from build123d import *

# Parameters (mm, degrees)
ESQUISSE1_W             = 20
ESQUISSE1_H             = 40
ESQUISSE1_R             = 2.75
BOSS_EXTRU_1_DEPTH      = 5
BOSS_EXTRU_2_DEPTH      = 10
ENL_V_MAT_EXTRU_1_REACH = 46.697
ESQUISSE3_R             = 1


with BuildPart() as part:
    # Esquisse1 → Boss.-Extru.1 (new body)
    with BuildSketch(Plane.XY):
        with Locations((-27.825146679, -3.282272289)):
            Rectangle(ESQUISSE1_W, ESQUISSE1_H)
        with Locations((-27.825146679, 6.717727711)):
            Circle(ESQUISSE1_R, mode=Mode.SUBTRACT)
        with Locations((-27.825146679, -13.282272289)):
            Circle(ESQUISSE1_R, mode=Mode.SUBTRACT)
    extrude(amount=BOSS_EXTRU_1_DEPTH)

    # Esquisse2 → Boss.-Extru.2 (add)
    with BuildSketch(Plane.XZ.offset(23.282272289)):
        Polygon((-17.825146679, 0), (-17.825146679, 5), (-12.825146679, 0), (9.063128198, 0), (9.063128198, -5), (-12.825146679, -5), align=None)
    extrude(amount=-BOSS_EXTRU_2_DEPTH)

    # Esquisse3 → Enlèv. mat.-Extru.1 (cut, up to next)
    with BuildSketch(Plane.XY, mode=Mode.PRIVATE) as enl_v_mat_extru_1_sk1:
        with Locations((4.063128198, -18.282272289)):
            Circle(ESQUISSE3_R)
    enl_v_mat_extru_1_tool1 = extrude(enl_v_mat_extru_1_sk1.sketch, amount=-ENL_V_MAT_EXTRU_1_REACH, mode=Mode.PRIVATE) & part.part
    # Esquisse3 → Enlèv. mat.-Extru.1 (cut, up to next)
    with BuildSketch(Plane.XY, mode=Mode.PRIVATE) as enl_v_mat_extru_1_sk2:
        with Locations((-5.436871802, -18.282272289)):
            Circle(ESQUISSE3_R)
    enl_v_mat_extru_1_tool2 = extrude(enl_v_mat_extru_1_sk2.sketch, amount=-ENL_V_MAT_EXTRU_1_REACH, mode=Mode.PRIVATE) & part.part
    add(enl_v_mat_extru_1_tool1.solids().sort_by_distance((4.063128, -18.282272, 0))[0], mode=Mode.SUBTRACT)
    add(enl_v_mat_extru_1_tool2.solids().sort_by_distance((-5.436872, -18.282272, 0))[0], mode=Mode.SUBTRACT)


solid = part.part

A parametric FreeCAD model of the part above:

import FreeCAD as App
import Part
import Sketcher

V = App.Vector
Q = App.Units.Quantity

doc = App.newDocument("Part")
body = doc.addObject("PartDesign::Body", "Body")

# Sketch on XY plane
sketch1 = body.newObject("Sketcher::SketchObject", "Sketch")
sketch1.AttachmentSupport = (doc.getObject("XY_Plane"), [""])
sketch1.MapMode = "FlatFace"
sketch1.addGeometry(Part.LineSegment(V(-37.8, 16.7, 0), V(-37.8, -23.3, 0)), False)
sketch1.addGeometry(Part.LineSegment(V(-37.8, -23.3, 0), V(-17.8, -23.3, 0)), False)
sketch1.addGeometry(Part.LineSegment(V(-17.8, -23.3, 0), V(-17.8, 16.7, 0)), False)
sketch1.addGeometry(Part.LineSegment(V(-17.8, 16.7, 0), V(-37.8, 16.7, 0)), False)
sketch1.addGeometry(Part.Circle(V(-27.8, -13.3, 0), V(0, 0, 1), 2.8), False)
sketch1.addGeometry(Part.Circle(V(-27.8, 6.7, 0), V(0, 0, 1), 2.8), False)
sketch1.addConstraint(Sketcher.Constraint("Coincident", 0, 2, 1, 1))
sketch1.addConstraint(Sketcher.Constraint("Coincident", 1, 2, 2, 1))
sketch1.addConstraint(Sketcher.Constraint("Coincident", 2, 2, 3, 1))
sketch1.addConstraint(Sketcher.Constraint("Coincident", 3, 2, 0, 1))
sketch1.addConstraint(Sketcher.Constraint("Vertical", 0))
sketch1.addConstraint(Sketcher.Constraint("Horizontal", 1))
sketch1.addConstraint(Sketcher.Constraint("Vertical", 2))
sketch1.addConstraint(Sketcher.Constraint("Horizontal", 3))
sketch1.addConstraint(Sketcher.Constraint("Equal", 4, 5))
sketch1.addConstraint(Sketcher.Constraint("Vertical", 4, 3, 5, 3))
sketch1.addConstraint(Sketcher.Constraint("Diameter", 4, 5.5))
sketch1.addConstraint(Sketcher.Constraint("DistanceX", 1, 1, 1, 2, 20.0))
sketch1.addConstraint(Sketcher.Constraint("DistanceY", 0, 2, 0, 1, 40.0))
sketch1.addConstraint(Sketcher.Constraint("DistanceY", 4, 3, 5, 3, 20.0))
sketch1.addConstraint(Sketcher.Constraint("DistanceX", 0, 2, 4, 3, 10.0))
sketch1.addConstraint(Sketcher.Constraint("DistanceY", 0, 2, 4, 3, 10.0))
sketch1.addConstraint(Sketcher.Constraint("DistanceX", 4, 3, -1, 1, 27.825147))
sketch1.addConstraint(Sketcher.Constraint("DistanceY", 4, 3, -1, 1, 13.282272))
pad1 = body.newObject("PartDesign::Pad", "Pad")
pad1.Profile = sketch1
pad1.Length = 5

# Sketch on XZ plane
sketch2 = body.newObject("Sketcher::SketchObject", "Sketch001")
sketch2.AttachmentSupport = (doc.getObject("XZ_Plane"), [""])
sketch2.MapMode = "FlatFace"
sketch2.AttachmentOffset = App.Placement(V(0, 0, 23.282272), App.Rotation())
sketch2.addGeometry(Part.LineSegment(V(-18, 5, 0), V(-18, 0, 0)), False)
sketch2.addGeometry(Part.LineSegment(V(-18, 0, 0), V(-13, -5, 0)), False)
sketch2.addGeometry(Part.LineSegment(V(-13, -5, 0), V(9, -5, 0)), False)
sketch2.addGeometry(Part.LineSegment(V(9, -5, 0), V(9, 0, 0)), False)
sketch2.addGeometry(Part.LineSegment(V(9, 0, 0), V(-13, 0, 0)), False)
sketch2.addGeometry(Part.LineSegment(V(-13, 0, 0), V(-18, 5, 0)), False)
sketch2.addConstraint(Sketcher.Constraint("Coincident", 0, 2, 1, 1))
sketch2.addConstraint(Sketcher.Constraint("Coincident", 1, 2, 2, 1))
sketch2.addConstraint(Sketcher.Constraint("Coincident", 2, 2, 3, 1))
sketch2.addConstraint(Sketcher.Constraint("Coincident", 3, 2, 4, 1))
sketch2.addConstraint(Sketcher.Constraint("Coincident", 4, 2, 5, 1))
sketch2.addConstraint(Sketcher.Constraint("Coincident", 5, 2, 0, 1))
sketch2.addConstraint(Sketcher.Constraint("Vertical", 0))
sketch2.addConstraint(Sketcher.Constraint("Horizontal", 2))
sketch2.addConstraint(Sketcher.Constraint("Vertical", 3))
sketch2.addConstraint(Sketcher.Constraint("Horizontal", 4))
sketch2.addConstraint(Sketcher.Constraint("PointOnObject", 0, 2, -1))
sketch2.addConstraint(Sketcher.Constraint("PointOnObject", 3, 2, -1))
sketch2.addConstraint(Sketcher.Constraint("Parallel", 1, 5))
sketch2.addConstraint(Sketcher.Constraint("Vertical", 1, 2, 4, 2))
sketch2.addConstraint(Sketcher.Constraint("DistanceY", 0, 2, 0, 1, 5.0))
sketch2.addConstraint(Sketcher.Constraint("Angle", 1, Q("-45 deg")))
sketch2.addConstraint(Sketcher.Constraint("DistanceX", 2, 1, 2, 2, 21.888275))
sketch2.addConstraint(Sketcher.Constraint("DistanceX", -1, 1, 2, 2, 9.063128))
pad2 = body.newObject("PartDesign::Pad", "Pad001")
pad2.Profile = sketch2
pad2.Length = 10
pad2.Reversed = True

# Sketch on XY plane
sketch3 = body.newObject("Sketcher::SketchObject", "Sketch002")
sketch3.AttachmentSupport = (doc.getObject("XY_Plane"), [""])
sketch3.MapMode = "FlatFace"
sketch3.addGeometry(Part.Circle(V(4.1, -18.3, 0), V(0, 0, 1), 1), False)
sketch3.addConstraint(Sketcher.Constraint("Diameter", 0, 2.0))
sketch3.addConstraint(Sketcher.Constraint("DistanceX", -1, 1, 0, 3, 4.063128))
sketch3.addConstraint(Sketcher.Constraint("DistanceY", 0, 3, -1, 1, 18.282272))
pocket1 = body.newObject("PartDesign::Pocket", "Pocket")
pocket1.Profile = sketch3
pocket1.Type = "UpToFirst"

# Sketch on XY plane
sketch4 = body.newObject("Sketcher::SketchObject", "Sketch003")
sketch4.AttachmentSupport = (doc.getObject("XY_Plane"), [""])
sketch4.MapMode = "FlatFace"
sketch4.addGeometry(Part.Circle(V(-5.4, -18.3, 0), V(0, 0, 1), 1), False)
sketch4.addConstraint(Sketcher.Constraint("Diameter", 0, 2.0))
sketch4.addConstraint(Sketcher.Constraint("DistanceX", 0, 3, -1, 1, 5.436872))
sketch4.addConstraint(Sketcher.Constraint("DistanceY", 0, 3, -1, 1, 18.282272))
pocket2 = body.newObject("PartDesign::Pocket", "Pocket001")
pocket2.Profile = sketch4
pocket2.Type = "UpToFirst"

doc.recompute()
